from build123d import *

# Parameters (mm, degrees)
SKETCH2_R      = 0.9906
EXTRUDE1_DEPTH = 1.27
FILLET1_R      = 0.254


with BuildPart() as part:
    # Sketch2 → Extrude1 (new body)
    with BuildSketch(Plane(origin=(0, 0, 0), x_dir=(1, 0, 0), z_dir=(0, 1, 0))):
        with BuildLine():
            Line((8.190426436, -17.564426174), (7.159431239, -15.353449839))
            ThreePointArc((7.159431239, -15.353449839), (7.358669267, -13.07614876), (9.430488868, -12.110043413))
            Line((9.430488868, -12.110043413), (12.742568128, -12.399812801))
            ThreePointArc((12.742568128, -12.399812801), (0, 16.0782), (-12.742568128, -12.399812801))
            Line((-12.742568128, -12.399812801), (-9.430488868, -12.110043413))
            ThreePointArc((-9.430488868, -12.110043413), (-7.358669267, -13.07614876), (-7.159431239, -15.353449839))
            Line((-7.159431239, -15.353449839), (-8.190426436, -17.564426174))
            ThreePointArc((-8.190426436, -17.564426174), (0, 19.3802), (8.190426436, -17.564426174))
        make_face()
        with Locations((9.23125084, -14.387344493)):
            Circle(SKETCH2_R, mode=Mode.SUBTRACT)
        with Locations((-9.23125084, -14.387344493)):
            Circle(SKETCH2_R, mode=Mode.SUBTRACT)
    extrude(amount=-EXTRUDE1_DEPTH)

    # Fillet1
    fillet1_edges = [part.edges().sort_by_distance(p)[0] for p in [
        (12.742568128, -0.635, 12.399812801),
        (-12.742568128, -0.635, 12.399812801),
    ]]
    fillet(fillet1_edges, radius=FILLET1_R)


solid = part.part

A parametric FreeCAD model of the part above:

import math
import FreeCAD as App
import Part
import Sketcher
Q = App.Units.Quantity


def edges_at(feature, points):
    """Names of the edges that pass closest to the given points."""
    edges = feature.Shape.Edges
    near = lambda p: min(range(len(edges)), key=lambda i: edges[i].distToShape(Part.Vertex(*p))[0])
    return sorted({f"Edge{near(p) + 1}" for p in points})

doc = App.newDocument("Part")
body = doc.addObject("PartDesign::Body", "Body")

sketch1 = doc.addObject("Sketcher::SketchObject", "Sketch")
body.addObject(sketch1)
sketch1.AttachmentSupport = (doc.XZ_Plane, [""])
sketch1.MapMode = "FlatFace"
sketch1.addGeometry(Part.LineSegment(App.Vector(7.2, 15.4, 0), App.Vector(8.2, 17.6, 0)), False)
sketch1.addGeometry(Part.ArcOfCircle(Part.Circle(App.Vector(0, 0, 0), App.Vector(0, 0, 1), 19.4), math.radians(115), math.radians(425)), False)
sketch1.addGeometry(Part.LineSegment(App.Vector(-8.2, 17.6, 0), App.Vector(-7.2, 15.4, 0)), False)
sketch1.addGeometry(Part.ArcOfCircle(Part.Circle(App.Vector(-9.2, 14.4, 0), App.Vector(0, 0, 1), 2.3), math.radians(-95), math.radians(25)), False)
sketch1.addGeometry(Part.LineSegment(App.Vector(-9.4, 12.1, 0), App.Vector(-12.7, 12.4, 0)), False)
sketch1.addGeometry(Part.ArcOfCircle(Part.Circle(App.Vector(0, 1, 0), App.Vector(0, 0, 1), 17.1), math.radians(138), math.radians(402)), False)
sketch1.addGeometry(Part.LineSegment(App.Vector(12.7, 12.4, 0), App.Vector(9.4, 12.1, 0)), False)
sketch1.addGeometry(Part.ArcOfCircle(Part.Circle(App.Vector(9.2, 14.4, 0), App.Vector(0, 0, 1), 2.3), math.radians(155), math.radians(275)), False)
sketch1.addGeometry(Part.Circle(App.Vector(9.2, 14.4, 0), App.Vector(0, 0, 1), 1), False)
sketch1.addGeometry(Part.Circle(App.Vector(-9.2, 14.4, 0), App.Vector(0, 0, 1), 1), False)
sketch1.addConstraint(Sketcher.Constraint("Coincident", 0, 2, 1, 2))
sketch1.addConstraint(Sketcher.Constraint("Coincident", 1, 1, 2, 1))
sketch1.addConstraint(Sketcher.Constraint("Tangent", 2, 2, 3, 2))
sketch1.addConstraint(Sketcher.Constraint("Tangent", 3, 1, 4, 1))
sketch1.addConstraint(Sketcher.Constraint("Coincident", 4, 2, 5, 1))
sketch1.addConstraint(Sketcher.Constraint("Coincident", 5, 2, 6, 1))
sketch1.addConstraint(Sketcher.Constraint("Tangent", 6, 2, 7, 2))
sketch1.addConstraint(Sketcher.Constraint("Tangent", 7, 1, 0, 1))
sketch1.addConstraint(Sketcher.Constraint("Coincident", 1, 3, -1, 1))
sketch1.addConstraint(Sketcher.Constraint("Coincident", 8, 3, 7, 3))
sketch1.addConstraint(Sketcher.Constraint("Coincident", 9, 3, 3, 3))
sketch1.addConstraint(Sketcher.Constraint("Equal", 3, 7))
sketch1.addConstraint(Sketcher.Constraint("Equal", 8, 9))
sketch1.addConstraint(Sketcher.Constraint("Symmetric", 3, 3, 7, 3, -2))
sketch1.addConstraint(Sketcher.Constraint("Symmetric", 4, 2, 5, 2, -2))
sketch1.addConstraint(Sketcher.Constraint("Horizontal", 0, 2, 1, 1))
sketch1.addConstraint(Sketcher.Constraint("Radius", 3, Q("0.09 in")))
sketch1.addConstraint(Sketcher.Constraint("Diameter", 8, Q("0.078 in")))
sketch1.addConstraint(Sketcher.Constraint("Angle", 0, Q("65 deg")))
sketch1.addConstraint(Sketcher.Constraint("Angle", 4, Q("175 deg")))
sketch1.addConstraint(Sketcher.Constraint("Radius", 1, Q("0.763 in")))
sketch1.addConstraint(Sketcher.Constraint("Radius", 5, Q("17.089856 mm")))
sketch1.addConstraint(Sketcher.Constraint("DistanceX", 3, 3, 7, 3, Q("18.462502 mm")))
sketch1.addConstraint(Sketcher.Constraint("Distance", 4, Q("3.324731 mm")))
sketch1.addConstraint(Sketcher.Constraint("DistanceY", -1, 1, 2, 2, Q("15.35345 mm")))
pad1 = doc.addObject("PartDesign::Pad", "Pad")
body.addObject(pad1)
pad1.Profile = sketch1
pad1.Length = Q("0.05 in")
doc.recompute()

fillet = doc.addObject("PartDesign::Fillet", "Fillet")
body.addObject(fillet)
fillet.Base = (pad1, edges_at(pad1, [(12.743, -0.635, 12.4), (-12.743, -0.635, 12.4)]))
fillet.Radius = Q("0.01 in")

doc.recompute()
